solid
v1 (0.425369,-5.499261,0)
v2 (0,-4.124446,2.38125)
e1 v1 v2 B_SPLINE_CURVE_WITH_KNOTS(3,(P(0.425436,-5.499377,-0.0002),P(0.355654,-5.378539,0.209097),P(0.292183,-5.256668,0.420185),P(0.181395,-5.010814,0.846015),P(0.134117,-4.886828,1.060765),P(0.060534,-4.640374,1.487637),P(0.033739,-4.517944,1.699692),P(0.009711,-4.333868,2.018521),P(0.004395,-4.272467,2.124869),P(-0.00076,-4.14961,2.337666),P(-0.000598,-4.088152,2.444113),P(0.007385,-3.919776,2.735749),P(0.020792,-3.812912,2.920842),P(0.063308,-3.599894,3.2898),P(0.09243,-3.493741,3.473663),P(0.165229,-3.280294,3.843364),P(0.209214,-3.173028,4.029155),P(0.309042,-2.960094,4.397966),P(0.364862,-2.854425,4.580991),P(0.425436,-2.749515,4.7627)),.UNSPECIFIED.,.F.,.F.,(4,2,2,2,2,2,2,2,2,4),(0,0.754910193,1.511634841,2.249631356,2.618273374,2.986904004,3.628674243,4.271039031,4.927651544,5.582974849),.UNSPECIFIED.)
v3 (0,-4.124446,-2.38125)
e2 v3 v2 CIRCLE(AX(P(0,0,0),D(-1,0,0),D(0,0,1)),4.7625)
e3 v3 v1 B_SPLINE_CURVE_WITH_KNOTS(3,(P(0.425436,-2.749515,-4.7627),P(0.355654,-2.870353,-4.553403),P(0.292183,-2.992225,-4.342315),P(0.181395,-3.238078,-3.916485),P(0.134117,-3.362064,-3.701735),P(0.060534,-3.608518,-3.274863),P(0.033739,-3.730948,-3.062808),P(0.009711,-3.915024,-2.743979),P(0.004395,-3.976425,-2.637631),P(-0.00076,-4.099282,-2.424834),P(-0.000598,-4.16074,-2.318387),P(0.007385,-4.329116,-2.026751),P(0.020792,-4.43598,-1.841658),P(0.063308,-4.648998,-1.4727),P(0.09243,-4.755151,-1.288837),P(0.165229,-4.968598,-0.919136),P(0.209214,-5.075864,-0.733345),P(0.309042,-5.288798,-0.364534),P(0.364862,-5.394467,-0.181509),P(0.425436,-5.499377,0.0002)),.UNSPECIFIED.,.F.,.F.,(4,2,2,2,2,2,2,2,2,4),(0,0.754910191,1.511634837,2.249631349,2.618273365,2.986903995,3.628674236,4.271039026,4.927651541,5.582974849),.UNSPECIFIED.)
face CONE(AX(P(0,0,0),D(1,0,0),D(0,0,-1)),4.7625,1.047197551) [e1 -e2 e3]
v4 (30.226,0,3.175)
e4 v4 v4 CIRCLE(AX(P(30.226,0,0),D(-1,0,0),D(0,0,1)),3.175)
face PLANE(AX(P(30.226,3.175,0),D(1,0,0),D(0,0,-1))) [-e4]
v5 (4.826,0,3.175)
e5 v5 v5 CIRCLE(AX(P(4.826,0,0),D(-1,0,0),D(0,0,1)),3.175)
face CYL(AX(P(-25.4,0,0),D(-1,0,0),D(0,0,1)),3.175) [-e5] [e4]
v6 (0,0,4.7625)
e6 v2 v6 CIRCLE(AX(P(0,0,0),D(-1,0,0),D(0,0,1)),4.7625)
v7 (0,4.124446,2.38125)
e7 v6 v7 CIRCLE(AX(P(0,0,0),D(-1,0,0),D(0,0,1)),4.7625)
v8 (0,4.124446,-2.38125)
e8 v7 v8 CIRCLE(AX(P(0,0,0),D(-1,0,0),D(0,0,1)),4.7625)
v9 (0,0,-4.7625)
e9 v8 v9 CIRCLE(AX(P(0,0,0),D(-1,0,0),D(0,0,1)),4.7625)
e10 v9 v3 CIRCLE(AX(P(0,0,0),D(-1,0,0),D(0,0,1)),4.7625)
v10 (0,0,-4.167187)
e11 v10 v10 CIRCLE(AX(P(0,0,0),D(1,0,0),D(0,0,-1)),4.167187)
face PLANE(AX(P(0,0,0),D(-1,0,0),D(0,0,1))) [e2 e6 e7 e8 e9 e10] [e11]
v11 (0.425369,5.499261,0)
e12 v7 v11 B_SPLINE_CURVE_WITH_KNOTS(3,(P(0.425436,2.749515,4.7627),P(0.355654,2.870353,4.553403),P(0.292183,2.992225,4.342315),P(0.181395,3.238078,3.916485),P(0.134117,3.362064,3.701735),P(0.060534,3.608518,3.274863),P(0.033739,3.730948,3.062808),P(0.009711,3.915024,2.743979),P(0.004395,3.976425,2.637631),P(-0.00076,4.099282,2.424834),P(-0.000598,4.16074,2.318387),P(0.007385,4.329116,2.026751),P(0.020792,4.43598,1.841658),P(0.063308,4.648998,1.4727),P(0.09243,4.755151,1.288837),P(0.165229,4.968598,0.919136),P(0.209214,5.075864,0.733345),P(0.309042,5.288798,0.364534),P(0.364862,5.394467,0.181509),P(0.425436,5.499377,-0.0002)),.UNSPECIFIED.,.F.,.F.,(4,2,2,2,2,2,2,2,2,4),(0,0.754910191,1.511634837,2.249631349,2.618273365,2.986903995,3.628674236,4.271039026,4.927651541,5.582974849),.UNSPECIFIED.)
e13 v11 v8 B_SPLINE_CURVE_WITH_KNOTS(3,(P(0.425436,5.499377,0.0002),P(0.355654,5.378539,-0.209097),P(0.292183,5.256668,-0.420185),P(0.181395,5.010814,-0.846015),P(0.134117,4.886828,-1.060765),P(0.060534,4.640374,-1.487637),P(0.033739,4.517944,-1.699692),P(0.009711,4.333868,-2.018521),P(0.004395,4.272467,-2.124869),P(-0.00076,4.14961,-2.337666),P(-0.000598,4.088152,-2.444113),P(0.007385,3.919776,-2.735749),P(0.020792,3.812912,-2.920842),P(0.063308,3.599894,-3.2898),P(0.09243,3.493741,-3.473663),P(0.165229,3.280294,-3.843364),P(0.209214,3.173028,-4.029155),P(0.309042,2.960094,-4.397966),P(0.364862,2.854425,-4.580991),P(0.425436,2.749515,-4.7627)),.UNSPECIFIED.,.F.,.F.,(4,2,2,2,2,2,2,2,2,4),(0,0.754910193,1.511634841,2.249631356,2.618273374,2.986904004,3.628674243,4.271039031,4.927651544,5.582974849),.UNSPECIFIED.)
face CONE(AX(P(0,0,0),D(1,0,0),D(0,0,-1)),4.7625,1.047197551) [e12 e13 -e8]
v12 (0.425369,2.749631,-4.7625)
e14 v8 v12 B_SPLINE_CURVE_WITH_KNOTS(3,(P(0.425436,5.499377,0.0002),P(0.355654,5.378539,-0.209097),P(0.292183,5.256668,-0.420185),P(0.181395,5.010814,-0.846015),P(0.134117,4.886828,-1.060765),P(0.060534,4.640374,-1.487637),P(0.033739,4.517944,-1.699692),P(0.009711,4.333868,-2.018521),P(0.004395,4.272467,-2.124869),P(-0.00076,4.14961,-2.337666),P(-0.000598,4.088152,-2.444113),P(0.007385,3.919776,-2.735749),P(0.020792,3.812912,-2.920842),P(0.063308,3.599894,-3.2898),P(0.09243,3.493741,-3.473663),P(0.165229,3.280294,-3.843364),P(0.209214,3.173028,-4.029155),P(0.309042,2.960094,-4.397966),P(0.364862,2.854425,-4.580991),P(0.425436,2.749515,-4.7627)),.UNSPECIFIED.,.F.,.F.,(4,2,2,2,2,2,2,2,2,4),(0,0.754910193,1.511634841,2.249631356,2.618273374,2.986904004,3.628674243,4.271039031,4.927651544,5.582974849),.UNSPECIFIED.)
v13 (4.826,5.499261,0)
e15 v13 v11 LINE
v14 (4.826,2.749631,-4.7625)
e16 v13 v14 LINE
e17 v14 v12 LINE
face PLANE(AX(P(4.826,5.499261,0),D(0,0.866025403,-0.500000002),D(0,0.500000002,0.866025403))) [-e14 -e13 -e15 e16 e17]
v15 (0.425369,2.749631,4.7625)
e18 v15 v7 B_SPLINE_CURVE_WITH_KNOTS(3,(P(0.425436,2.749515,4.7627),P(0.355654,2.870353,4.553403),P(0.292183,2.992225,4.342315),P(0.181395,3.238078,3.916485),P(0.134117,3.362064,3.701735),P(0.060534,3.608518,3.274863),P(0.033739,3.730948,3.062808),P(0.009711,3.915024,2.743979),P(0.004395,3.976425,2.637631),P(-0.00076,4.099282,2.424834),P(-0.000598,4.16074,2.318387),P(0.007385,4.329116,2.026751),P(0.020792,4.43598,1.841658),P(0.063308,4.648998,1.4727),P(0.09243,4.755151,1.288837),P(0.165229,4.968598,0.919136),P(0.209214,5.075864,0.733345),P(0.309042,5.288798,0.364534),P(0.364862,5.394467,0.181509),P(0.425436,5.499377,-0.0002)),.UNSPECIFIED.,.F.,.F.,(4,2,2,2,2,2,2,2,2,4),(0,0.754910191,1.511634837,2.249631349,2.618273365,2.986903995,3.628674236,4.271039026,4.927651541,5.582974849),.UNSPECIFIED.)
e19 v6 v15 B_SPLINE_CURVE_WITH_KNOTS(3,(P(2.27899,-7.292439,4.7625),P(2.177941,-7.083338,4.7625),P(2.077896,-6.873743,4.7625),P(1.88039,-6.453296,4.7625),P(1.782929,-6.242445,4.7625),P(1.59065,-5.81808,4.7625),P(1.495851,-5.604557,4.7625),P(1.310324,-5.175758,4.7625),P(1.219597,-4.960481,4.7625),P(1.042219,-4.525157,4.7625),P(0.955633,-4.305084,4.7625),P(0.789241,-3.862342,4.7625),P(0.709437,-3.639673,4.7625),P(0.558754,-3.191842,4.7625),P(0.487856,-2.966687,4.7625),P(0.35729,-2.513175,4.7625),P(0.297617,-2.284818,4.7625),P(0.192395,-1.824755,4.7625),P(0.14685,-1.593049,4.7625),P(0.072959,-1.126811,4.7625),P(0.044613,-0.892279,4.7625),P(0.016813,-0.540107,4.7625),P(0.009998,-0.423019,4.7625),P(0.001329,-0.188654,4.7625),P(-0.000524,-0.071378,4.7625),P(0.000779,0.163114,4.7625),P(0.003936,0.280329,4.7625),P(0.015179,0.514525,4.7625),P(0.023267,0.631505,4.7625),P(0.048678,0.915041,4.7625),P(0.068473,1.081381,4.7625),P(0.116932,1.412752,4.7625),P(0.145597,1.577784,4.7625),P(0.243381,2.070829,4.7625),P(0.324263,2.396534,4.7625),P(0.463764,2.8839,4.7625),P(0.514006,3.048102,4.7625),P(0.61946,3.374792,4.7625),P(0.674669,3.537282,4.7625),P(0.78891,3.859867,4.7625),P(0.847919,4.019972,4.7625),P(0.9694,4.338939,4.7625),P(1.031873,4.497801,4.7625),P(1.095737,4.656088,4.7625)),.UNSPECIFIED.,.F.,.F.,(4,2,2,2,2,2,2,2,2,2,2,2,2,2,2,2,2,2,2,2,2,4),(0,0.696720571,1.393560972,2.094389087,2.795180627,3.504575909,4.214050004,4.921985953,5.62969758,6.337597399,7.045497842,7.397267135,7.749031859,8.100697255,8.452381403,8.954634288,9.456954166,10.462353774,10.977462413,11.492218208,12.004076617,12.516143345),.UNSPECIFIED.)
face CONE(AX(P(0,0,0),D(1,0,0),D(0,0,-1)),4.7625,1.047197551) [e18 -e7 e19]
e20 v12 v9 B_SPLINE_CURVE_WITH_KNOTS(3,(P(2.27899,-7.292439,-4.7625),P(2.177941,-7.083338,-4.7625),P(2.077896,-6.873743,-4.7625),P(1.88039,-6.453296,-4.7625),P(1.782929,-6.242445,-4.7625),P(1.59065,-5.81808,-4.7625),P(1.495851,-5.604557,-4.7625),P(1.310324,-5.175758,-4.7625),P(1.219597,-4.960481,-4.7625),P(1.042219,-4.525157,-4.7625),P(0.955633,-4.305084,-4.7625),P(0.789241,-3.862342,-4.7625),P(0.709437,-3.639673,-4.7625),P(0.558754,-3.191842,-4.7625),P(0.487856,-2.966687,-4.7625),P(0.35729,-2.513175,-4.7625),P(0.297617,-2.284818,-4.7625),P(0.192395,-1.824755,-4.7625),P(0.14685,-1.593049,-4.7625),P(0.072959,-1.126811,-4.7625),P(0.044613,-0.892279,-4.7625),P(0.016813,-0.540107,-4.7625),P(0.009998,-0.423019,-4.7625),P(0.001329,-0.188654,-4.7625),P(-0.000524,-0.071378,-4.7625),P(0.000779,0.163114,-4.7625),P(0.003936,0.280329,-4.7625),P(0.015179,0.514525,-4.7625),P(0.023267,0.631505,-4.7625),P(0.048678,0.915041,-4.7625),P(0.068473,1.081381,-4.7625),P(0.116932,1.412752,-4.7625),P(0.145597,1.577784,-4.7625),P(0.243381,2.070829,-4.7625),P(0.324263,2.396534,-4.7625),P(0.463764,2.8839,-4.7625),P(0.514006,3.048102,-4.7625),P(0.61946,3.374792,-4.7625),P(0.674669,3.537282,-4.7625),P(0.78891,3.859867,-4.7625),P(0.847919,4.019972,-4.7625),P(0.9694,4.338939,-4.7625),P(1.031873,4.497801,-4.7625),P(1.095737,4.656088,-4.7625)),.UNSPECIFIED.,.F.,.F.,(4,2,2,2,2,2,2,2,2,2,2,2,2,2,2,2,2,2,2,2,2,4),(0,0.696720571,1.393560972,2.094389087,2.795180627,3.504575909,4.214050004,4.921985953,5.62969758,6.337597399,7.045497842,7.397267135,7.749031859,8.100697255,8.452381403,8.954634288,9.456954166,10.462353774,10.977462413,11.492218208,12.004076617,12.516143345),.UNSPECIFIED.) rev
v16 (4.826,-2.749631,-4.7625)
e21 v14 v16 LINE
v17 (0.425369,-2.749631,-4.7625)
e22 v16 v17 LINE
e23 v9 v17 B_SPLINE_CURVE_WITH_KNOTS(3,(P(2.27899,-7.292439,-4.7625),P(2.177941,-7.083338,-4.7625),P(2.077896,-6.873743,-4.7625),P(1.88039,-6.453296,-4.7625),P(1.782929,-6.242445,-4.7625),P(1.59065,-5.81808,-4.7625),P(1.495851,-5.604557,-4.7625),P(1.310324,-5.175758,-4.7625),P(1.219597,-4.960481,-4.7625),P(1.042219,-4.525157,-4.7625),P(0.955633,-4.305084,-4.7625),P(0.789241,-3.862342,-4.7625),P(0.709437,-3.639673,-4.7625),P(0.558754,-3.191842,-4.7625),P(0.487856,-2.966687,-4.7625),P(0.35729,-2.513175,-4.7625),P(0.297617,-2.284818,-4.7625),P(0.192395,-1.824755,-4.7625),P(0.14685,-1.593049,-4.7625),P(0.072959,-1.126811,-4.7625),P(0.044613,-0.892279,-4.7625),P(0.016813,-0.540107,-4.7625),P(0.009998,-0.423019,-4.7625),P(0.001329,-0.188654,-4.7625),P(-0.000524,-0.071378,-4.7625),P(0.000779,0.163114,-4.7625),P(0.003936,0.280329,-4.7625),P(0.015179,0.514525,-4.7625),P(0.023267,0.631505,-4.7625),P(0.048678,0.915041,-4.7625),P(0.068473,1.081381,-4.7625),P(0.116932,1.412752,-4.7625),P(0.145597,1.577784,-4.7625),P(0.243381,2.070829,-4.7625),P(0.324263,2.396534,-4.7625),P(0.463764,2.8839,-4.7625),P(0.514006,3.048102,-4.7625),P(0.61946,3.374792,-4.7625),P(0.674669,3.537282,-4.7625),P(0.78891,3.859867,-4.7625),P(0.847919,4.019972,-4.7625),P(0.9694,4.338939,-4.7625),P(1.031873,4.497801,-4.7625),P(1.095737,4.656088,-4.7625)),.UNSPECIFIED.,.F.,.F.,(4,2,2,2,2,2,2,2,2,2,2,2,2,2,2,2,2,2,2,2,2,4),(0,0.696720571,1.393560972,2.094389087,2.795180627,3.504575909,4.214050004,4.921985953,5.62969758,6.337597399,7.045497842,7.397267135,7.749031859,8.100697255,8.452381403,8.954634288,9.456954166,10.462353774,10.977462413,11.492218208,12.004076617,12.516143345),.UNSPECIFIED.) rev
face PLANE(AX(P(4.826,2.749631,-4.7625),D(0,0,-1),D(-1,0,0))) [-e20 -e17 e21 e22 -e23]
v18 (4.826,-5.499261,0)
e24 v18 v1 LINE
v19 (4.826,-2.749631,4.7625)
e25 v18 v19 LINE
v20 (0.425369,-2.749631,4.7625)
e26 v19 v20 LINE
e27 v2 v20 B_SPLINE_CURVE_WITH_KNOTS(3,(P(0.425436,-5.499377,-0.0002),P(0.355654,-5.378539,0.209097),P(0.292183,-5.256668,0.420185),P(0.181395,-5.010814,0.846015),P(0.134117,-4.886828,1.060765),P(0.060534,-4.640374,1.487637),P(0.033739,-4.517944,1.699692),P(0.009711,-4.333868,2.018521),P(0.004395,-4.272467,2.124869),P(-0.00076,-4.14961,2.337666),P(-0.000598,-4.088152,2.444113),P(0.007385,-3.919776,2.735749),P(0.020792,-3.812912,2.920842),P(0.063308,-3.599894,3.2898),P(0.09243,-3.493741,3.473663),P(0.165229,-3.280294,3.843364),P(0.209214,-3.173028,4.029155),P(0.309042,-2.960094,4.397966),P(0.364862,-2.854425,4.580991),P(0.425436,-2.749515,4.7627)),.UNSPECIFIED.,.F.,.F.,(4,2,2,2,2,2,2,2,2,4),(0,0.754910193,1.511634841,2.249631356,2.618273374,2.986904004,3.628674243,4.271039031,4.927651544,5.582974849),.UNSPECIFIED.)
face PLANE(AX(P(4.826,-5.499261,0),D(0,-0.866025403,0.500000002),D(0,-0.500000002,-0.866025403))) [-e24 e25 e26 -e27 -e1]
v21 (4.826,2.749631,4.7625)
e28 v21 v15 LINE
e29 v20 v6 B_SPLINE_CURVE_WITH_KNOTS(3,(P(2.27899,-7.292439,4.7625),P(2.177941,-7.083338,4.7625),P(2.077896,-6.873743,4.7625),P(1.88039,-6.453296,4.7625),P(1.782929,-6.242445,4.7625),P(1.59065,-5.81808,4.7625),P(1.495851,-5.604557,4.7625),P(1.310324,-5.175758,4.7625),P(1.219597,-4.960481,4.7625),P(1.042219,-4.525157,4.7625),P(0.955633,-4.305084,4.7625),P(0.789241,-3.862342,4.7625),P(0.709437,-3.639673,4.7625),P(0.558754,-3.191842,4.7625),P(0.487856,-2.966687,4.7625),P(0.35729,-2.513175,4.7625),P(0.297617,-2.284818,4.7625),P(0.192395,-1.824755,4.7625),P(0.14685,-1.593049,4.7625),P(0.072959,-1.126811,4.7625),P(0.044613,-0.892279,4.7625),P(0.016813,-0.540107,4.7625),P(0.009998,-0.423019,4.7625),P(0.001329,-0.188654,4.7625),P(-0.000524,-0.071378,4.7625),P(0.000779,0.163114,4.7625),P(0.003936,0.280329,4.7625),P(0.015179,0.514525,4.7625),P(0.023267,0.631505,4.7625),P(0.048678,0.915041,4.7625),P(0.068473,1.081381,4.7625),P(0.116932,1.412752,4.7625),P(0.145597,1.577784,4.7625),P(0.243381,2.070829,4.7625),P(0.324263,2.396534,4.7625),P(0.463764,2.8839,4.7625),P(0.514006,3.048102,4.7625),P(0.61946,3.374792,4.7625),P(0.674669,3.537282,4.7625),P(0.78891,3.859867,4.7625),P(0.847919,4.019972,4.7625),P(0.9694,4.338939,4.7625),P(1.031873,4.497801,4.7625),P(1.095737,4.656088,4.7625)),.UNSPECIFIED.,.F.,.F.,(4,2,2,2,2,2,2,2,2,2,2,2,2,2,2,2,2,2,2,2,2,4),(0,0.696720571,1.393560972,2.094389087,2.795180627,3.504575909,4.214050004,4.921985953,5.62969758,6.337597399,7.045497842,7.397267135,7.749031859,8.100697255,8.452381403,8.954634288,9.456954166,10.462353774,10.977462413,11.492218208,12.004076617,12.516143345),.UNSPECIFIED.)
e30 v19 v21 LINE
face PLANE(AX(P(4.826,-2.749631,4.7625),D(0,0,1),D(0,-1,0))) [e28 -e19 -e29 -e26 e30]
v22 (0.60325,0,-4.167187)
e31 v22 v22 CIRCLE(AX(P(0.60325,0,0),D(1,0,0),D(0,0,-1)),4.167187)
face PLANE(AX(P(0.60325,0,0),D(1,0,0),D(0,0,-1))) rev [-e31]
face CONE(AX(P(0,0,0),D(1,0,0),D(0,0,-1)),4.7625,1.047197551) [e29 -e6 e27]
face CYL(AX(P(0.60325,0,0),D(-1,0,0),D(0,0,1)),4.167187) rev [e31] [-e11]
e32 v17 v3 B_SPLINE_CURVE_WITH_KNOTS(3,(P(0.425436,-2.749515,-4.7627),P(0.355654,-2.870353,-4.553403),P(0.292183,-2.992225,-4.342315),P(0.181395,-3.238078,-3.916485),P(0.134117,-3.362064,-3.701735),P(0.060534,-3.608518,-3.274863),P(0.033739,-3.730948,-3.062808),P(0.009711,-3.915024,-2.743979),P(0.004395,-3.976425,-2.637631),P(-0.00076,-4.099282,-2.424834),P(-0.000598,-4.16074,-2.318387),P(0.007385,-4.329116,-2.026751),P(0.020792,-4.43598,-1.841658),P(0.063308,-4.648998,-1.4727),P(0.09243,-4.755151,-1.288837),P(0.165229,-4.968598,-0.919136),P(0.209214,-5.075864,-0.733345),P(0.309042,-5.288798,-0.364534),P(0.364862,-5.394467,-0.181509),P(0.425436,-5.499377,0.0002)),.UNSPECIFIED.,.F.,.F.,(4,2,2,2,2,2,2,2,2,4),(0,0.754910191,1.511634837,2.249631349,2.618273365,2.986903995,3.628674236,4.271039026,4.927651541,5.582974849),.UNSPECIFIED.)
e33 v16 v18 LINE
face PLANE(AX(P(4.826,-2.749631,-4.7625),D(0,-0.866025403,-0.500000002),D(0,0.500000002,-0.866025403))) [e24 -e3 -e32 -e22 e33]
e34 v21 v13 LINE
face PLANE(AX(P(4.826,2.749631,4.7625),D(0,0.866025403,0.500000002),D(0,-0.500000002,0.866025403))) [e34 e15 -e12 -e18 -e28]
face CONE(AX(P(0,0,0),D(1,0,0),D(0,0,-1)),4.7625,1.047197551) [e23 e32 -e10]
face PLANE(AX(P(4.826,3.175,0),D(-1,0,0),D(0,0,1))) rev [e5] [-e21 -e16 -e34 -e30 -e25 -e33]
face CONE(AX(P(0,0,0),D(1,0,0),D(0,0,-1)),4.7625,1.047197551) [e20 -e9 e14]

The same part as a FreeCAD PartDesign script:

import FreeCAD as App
import Part
import Sketcher
from FreeCAD import Vector
Q = App.Units.Quantity


def add_polygon(sketch, points):
    """Adds a closed chain of lines whose ends are joined by coincident constraints."""
    first, n = sketch.GeometryCount, len(points)
    for a, b in zip(points, points[1:] + points[:1]):
        sketch.addGeometry(Part.LineSegment(App.Vector(*a, 0), App.Vector(*b, 0)), False)
    for i in range(n):
        sketch.addConstraint(Sketcher.Constraint("Coincident", first + i, 2, first + (i + 1) % n, 1))

doc = App.newDocument("Part")
body = doc.addObject("PartDesign::Body", "Body")

sketch1 = body.newObject("Sketcher::SketchObject", "Sketch")
sketch1.AttachmentSupport = (doc.getObject("XY_Plane"), [""])
sketch1.MapMode = "FlatFace"
add_polygon(sketch1, [(4.8, 3.2), (4.8, 5.5), (0.4, 5.5), (0, 4.8), (0, 0), (30.2, 0), (30.2, 3.2)])
sketch1.addConstraint([
    Sketcher.Constraint("Vertical", 0),
    Sketcher.Constraint("Horizontal", 1),
    Sketcher.Constraint("Vertical", 3),
    Sketcher.Constraint("Horizontal", 4),
    Sketcher.Constraint("Vertical", 5),
    Sketcher.Constraint("Horizontal", 6),
    Sketcher.Constraint("Coincident", 3, 2, -1, 1),
    Sketcher.Constraint("DistanceX", 6, 2, 6, 1, Q("1 in")),
    Sketcher.Constraint("Angle", 2, Q("-120 deg")),
    Sketcher.Constraint("DistanceX", 4, 1, 4, 2, Q("1.19 in")),
    Sketcher.Constraint("DistanceY", 3, 2, 3, 1, Q("0.1875 in")),
    Sketcher.Constraint("DistanceY", 5, 1, 5, 2, Q("0.125 in")),
    Sketcher.Constraint("DistanceX", 1, 2, 1, 1, 4.400538),
])
revolution = body.newObject("PartDesign::Revolution", "Revolution")
revolution.Profile = sketch1
revolution.ReferenceAxis = (sketch1, ["H_Axis"])
revolution.Angle = 360

sketch2 = body.newObject("Sketcher::SketchObject", "Sketch001")
sketch2.AttachmentSupport = (doc.getObject("YZ_Plane"), [""])
sketch2.MapMode = "FlatFace"
sketch2.addGeometry(Part.Circle(Vector(0, 0, 0), Vector(0, 0, 1), 6), False)
add_polygon(sketch2, [(-3, 5), (3, 5), (5, 0), (3, -5), (-3, -5), (-5, 0)])
sketch2.addConstraint([
    Sketcher.Constraint("Horizontal", 1),
    Sketcher.Constraint("Horizontal", 4),
    Sketcher.Constraint("Coincident", 0, 3, -1, 1),
    Sketcher.Constraint("Symmetric", 1, 2, 4, 2, -1, 1),
    Sketcher.Constraint("Symmetric", 2, 2, 5, 2, -1, 1),
    Sketcher.Constraint("PointOnObject", 2, 2, -1),
    Sketcher.Constraint("Parallel", 3, 6),
    Sketcher.Constraint("Vertical", 1, 2, 3, 2),
    Sketcher.Constraint("Angle", 2, Q("-60 deg")),
    Sketcher.Constraint("DistanceY", -1, 1, 1, 2, Q("0.1875 in")),
    Sketcher.Constraint("Diameter", 0, 11.108834),
    Sketcher.Constraint("DistanceX", 1, 1, 1, 2, 5.499261),
])
pocket1 = body.newObject("PartDesign::Pocket", "Pocket")
pocket1.Profile = sketch2
pocket1.Length = Q("0.19 in")
pocket1.Reversed = True

sketch3 = body.newObject("Sketcher::SketchObject", "Sketch002")
sketch3.AttachmentSupport = (doc.getObject("YZ_Plane"), [""])
sketch3.MapMode = "FlatFace"
sketch3.addGeometry(Part.Circle(Vector(0, 0, 0), Vector(0, 0, 1), 4.2), False)
sketch3.addConstraint([
    Sketcher.Constraint("Coincident", 0, 3, -1, 1),
    Sketcher.Constraint("Diameter", 0, Q("0.328125 in")),
])
pocket2 = body.newObject("PartDesign::Pocket", "Pocket001")
pocket2.Profile = sketch3
pocket2.Length = 0.60325
pocket2.Reversed = True

doc.recompute()
